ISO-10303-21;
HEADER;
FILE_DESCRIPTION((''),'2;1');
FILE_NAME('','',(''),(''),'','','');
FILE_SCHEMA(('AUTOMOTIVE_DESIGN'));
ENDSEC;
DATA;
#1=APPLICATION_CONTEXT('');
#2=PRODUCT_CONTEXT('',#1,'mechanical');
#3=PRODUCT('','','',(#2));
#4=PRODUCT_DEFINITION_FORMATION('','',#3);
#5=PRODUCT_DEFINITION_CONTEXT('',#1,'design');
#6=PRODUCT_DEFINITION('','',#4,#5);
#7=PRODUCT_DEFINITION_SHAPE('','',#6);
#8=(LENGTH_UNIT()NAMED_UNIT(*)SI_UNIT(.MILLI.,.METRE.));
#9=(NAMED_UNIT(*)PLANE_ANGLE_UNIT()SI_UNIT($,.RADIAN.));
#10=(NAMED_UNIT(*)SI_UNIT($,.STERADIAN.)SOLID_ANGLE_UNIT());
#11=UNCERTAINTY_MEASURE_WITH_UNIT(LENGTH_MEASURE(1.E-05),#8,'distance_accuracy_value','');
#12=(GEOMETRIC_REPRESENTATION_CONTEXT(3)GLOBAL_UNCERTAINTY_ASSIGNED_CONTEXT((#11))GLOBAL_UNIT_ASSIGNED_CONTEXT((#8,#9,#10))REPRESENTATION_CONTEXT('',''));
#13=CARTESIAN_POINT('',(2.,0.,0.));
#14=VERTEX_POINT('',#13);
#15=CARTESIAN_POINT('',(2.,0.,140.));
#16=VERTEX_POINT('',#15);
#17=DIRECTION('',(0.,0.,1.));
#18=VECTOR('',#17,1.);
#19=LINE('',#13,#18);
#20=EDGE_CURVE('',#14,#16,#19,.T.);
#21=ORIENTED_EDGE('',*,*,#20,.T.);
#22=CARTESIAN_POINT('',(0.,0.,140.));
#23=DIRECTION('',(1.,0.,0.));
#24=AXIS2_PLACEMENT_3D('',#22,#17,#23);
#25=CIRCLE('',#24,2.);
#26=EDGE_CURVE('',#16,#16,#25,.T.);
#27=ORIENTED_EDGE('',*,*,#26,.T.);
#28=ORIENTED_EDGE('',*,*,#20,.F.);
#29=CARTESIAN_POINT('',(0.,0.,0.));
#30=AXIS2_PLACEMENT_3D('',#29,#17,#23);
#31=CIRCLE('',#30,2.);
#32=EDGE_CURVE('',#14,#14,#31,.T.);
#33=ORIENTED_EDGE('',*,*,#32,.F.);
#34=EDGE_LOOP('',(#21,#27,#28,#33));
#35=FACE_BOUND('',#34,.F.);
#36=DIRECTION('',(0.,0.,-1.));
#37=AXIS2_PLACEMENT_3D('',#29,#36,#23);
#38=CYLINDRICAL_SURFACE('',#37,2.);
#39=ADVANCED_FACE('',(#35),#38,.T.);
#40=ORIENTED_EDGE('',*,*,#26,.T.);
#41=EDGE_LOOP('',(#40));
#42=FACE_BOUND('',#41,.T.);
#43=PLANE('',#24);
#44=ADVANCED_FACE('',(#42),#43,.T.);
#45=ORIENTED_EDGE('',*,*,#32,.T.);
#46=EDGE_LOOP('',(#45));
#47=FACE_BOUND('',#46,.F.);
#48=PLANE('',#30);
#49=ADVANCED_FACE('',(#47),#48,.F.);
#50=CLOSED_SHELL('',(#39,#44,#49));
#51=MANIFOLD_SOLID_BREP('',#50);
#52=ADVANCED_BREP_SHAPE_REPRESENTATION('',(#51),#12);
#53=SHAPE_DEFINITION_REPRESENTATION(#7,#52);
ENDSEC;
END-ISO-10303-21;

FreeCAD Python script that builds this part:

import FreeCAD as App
import Part
import Sketcher
from FreeCAD import Vector

doc = App.newDocument("Part")
params = doc.addObject("Spreadsheet::Sheet", "Params")
for row, (alias, value) in enumerate([
    ("sketch1_diameter", "4 mm"),
    ("pad1_length", "140 mm"),
], start=1):
    params.set(f"A{row}", alias)
    params.set(f"B{row}", "=" + value)
    params.setAlias(f"B{row}", alias)

body = doc.addObject("PartDesign::Body", "Body")

# Sketch on XY plane
sketch1 = doc.addObject("Sketcher::SketchObject", "Sketch")
body.addObject(sketch1)
sketch1.AttachmentSupport = (doc.XY_Plane, [""])
sketch1.MapMode = "FlatFace"
sketch1.addGeometry(Part.Circle(Vector(0, 0, 0), Vector(0, 0, 1), 2), False)
sketch1.addConstraint([
    Sketcher.Constraint("Coincident", 0, 3, -1, 1),
    Sketcher.Constraint("Diameter", 0, 4.0),
])
sketch1.setExpression("Constraints[1]", "Params.sketch1_diameter")
pad1 = doc.addObject("PartDesign::Pad", "Pad")
body.addObject(pad1)
pad1.Profile = sketch1
pad1.setExpression("Length", "Params.pad1_length")

doc.recompute()
